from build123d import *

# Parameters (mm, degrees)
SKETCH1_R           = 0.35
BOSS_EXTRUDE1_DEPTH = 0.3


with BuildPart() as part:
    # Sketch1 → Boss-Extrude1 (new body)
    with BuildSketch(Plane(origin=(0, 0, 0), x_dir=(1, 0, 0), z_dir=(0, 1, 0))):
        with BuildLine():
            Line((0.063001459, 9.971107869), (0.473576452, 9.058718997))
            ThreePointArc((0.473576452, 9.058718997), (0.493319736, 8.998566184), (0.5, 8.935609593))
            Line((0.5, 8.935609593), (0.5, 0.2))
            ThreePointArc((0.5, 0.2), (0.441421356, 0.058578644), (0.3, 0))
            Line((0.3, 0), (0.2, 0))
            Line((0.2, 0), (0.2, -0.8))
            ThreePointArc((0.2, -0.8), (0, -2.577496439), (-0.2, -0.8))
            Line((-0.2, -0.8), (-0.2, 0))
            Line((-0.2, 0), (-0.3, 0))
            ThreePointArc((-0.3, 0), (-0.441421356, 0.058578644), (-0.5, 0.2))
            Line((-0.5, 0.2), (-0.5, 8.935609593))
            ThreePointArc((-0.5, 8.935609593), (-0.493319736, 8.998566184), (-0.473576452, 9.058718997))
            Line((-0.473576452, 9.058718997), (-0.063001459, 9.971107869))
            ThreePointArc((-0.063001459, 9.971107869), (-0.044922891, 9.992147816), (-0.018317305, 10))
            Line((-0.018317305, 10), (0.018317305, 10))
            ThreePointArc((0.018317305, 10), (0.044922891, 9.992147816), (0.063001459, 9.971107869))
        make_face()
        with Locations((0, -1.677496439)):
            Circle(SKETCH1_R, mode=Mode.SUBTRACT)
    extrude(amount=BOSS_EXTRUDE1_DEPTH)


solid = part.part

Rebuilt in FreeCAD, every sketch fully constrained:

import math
import FreeCAD as App
import Part
import Sketcher
from FreeCAD import Vector
Q = App.Units.Quantity

doc = App.newDocument("Part")
params = doc.addObject("Spreadsheet::Sheet", "Params")
for row, (alias, value) in enumerate([
    ("sketch1_diameter", "0.7 mm"),
    ("sketch1_radius", "0.3 mm"),
    ("sketch1_radius2", "0.2 mm"),
    ("sketch1_radius3", "0.9 mm"),
    ("sketch1_height", "0.8 mm"),
    ("pad1_length", "0.3 mm"),
], start=1):
    params.set(f"A{row}", alias)
    params.set(f"B{row}", "=" + value)
    params.setAlias(f"B{row}", alias)

body = doc.addObject("PartDesign::Body", "Body")

# Sketch on XZ plane
sketch1 = doc.addObject("Sketcher::SketchObject", "Sketch")
body.addObject(sketch1)
sketch1.AttachmentSupport = (doc.XZ_Plane, [""])
sketch1.MapMode = "FlatFace"
sketch1.addGeometry(Part.LineSegment(Vector(0.474, -9.059, 0), Vector(0.063, -9.971, 0)), False)
sketch1.addGeometry(Part.ArcOfCircle(Part.Circle(Vector(0.018, -9.951, 0), Vector(0, 0, 1), 0.049), math.radians(-90), math.radians(-24)), False)
sketch1.addGeometry(Part.LineSegment(Vector(0.018, -10, 0), Vector(-0.018, -10, 0)), False)
sketch1.addGeometry(Part.ArcOfCircle(Part.Circle(Vector(-0.018, -9.951, 0), Vector(0, 0, 1), 0.049), math.radians(-156), math.radians(-90)), False)
sketch1.addGeometry(Part.LineSegment(Vector(-0.063, -9.971, 0), Vector(-0.474, -9.059, 0)), False)
sketch1.addGeometry(Part.ArcOfCircle(Part.Circle(Vector(-0.2, -8.936, 0), Vector(0, 0, 1), 0.3), math.radians(-180), math.radians(-156)), False)
sketch1.addGeometry(Part.LineSegment(Vector(-0.5, -8.936, 0), Vector(-0.5, -0.2, 0)), False)
sketch1.addGeometry(Part.ArcOfCircle(Part.Circle(Vector(-0.3, -0.2, 0), Vector(0, 0, 1), 0.2), math.radians(90), math.radians(180)), False)
sketch1.addGeometry(Part.LineSegment(Vector(-0.3, 0, 0), Vector(-0.2, 0, 0)), False)
sketch1.addGeometry(Part.LineSegment(Vector(-0.2, 0, 0), Vector(-0.2, 0.8, 0)), False)
sketch1.addGeometry(Part.ArcOfCircle(Part.Circle(Vector(0, 1.677, 0), Vector(0, 0, 1), 0.9), math.radians(-77), math.radians(257)), False)
sketch1.addGeometry(Part.LineSegment(Vector(0.2, 0.8, 0), Vector(0.2, 0, 0)), False)
sketch1.addGeometry(Part.LineSegment(Vector(0.2, 0, 0), Vector(0.3, 0, 0)), False)
sketch1.addGeometry(Part.ArcOfCircle(Part.Circle(Vector(0.3, -0.2, 0), Vector(0, 0, 1), 0.2), math.radians(0), math.radians(90)), False)
sketch1.addGeometry(Part.LineSegment(Vector(0.5, -0.2, 0), Vector(0.5, -8.936, 0)), False)
sketch1.addGeometry(Part.ArcOfCircle(Part.Circle(Vector(0.2, -8.936, 0), Vector(0, 0, 1), 0.3), math.radians(-24), math.radians(0)), False)
sketch1.addGeometry(Part.Circle(Vector(0, 1.677, 0), Vector(0, 0, 1), 0.35), False)
sketch1.addConstraint(Sketcher.Constraint("Tangent", 0, 2, 1, 2))
sketch1.addConstraint(Sketcher.Constraint("Tangent", 1, 1, 2, 1))
sketch1.addConstraint(Sketcher.Constraint("Tangent", 2, 2, 3, 2))
sketch1.addConstraint(Sketcher.Constraint("Tangent", 3, 1, 4, 1))
sketch1.addConstraint(Sketcher.Constraint("Tangent", 4, 2, 5, 2))
sketch1.addConstraint(Sketcher.Constraint("Tangent", 5, 1, 6, 1))
sketch1.addConstraint(Sketcher.Constraint("Tangent", 6, 2, 7, 2))
sketch1.addConstraint(Sketcher.Constraint("Tangent", 7, 1, 8, 1))
sketch1.addConstraint(Sketcher.Constraint("Coincident", 8, 2, 9, 1))
sketch1.addConstraint(Sketcher.Constraint("Coincident", 9, 2, 10, 2))
sketch1.addConstraint(Sketcher.Constraint("Coincident", 10, 1, 11, 1))
sketch1.addConstraint(Sketcher.Constraint("Coincident", 11, 2, 12, 1))
sketch1.addConstraint(Sketcher.Constraint("Tangent", 12, 2, 13, 2))
sketch1.addConstraint(Sketcher.Constraint("Tangent", 13, 1, 14, 1))
sketch1.addConstraint(Sketcher.Constraint("Tangent", 14, 2, 15, 2))
sketch1.addConstraint(Sketcher.Constraint("Tangent", 15, 1, 0, 1))
sketch1.addConstraint(Sketcher.Constraint("Horizontal", 2))
sketch1.addConstraint(Sketcher.Constraint("Vertical", 6))
sketch1.addConstraint(Sketcher.Constraint("Horizontal", 8))
sketch1.addConstraint(Sketcher.Constraint("Vertical", 9))
sketch1.addConstraint(Sketcher.Constraint("Vertical", 11))
sketch1.addConstraint(Sketcher.Constraint("Horizontal", 12))
sketch1.addConstraint(Sketcher.Constraint("Vertical", 14))
sketch1.addConstraint(Sketcher.Constraint("Coincident", 16, 3, 10, 3))
sketch1.addConstraint(Sketcher.Constraint("Equal", 1, 3))
sketch1.addConstraint(Sketcher.Constraint("Equal", 7, 13))
sketch1.addConstraint(Sketcher.Constraint("Equal", 5, 15))
sketch1.addConstraint(Sketcher.Constraint("Symmetric", 8, 2, 11, 2, -1, 1))
sketch1.addConstraint(Sketcher.Constraint("Symmetric", 7, 3, 13, 3, -2))
sketch1.addConstraint(Sketcher.Constraint("Symmetric", 0, 2, 3, 1, -2))
sketch1.addConstraint(Sketcher.Constraint("PointOnObject", 10, 3, -2))
sketch1.addConstraint(Sketcher.Constraint("Vertical", 5, 3, 8, 2))
sketch1.addConstraint(Sketcher.Constraint("Diameter", 16, Q("0.7 mm")))
sketch1.addConstraint(Sketcher.Constraint("Radius", 5, Q("0.3 mm")))
sketch1.addConstraint(Sketcher.Constraint("Radius", 7, Q("0.2 mm")))
sketch1.addConstraint(Sketcher.Constraint("Radius", 10, Q("0.9 mm")))
sketch1.addConstraint(Sketcher.Constraint("DistanceY", 9, 1, 9, 2, Q("0.8 mm")))
sketch1.addConstraint(Sketcher.Constraint("DistanceY", 1, 1, -1, 1, Q("10 mm")))
sketch1.addConstraint(Sketcher.Constraint("Radius", 1, Q("0.049 mm")))
sketch1.addConstraint(Sketcher.Constraint("DistanceX", 5, 1, 14, 2, Q("1 mm")))
sketch1.addConstraint(Sketcher.Constraint("DistanceX", -1, 1, 0, 2, Q("0.063001 mm")))
sketch1.addConstraint(Sketcher.Constraint("DistanceY", 6, 1, 6, 2, Q("8.73561 mm")))
sketch1.setExpression("Constraints[32]", "Params.sketch1_diameter")
sketch1.setExpression("Constraints[33]", "Params.sketch1_radius")
sketch1.setExpression("Constraints[34]", "Params.sketch1_radius2")
sketch1.setExpression("Constraints[35]", "Params.sketch1_radius3")
sketch1.setExpression("Constraints[36]", "Params.sketch1_height")
pad1 = doc.addObject("PartDesign::Pad", "Pad")
body.addObject(pad1)
pad1.Profile = sketch1
pad1.setExpression("Length", "Params.pad1_length")
pad1.Reversed = True

doc.recompute()
